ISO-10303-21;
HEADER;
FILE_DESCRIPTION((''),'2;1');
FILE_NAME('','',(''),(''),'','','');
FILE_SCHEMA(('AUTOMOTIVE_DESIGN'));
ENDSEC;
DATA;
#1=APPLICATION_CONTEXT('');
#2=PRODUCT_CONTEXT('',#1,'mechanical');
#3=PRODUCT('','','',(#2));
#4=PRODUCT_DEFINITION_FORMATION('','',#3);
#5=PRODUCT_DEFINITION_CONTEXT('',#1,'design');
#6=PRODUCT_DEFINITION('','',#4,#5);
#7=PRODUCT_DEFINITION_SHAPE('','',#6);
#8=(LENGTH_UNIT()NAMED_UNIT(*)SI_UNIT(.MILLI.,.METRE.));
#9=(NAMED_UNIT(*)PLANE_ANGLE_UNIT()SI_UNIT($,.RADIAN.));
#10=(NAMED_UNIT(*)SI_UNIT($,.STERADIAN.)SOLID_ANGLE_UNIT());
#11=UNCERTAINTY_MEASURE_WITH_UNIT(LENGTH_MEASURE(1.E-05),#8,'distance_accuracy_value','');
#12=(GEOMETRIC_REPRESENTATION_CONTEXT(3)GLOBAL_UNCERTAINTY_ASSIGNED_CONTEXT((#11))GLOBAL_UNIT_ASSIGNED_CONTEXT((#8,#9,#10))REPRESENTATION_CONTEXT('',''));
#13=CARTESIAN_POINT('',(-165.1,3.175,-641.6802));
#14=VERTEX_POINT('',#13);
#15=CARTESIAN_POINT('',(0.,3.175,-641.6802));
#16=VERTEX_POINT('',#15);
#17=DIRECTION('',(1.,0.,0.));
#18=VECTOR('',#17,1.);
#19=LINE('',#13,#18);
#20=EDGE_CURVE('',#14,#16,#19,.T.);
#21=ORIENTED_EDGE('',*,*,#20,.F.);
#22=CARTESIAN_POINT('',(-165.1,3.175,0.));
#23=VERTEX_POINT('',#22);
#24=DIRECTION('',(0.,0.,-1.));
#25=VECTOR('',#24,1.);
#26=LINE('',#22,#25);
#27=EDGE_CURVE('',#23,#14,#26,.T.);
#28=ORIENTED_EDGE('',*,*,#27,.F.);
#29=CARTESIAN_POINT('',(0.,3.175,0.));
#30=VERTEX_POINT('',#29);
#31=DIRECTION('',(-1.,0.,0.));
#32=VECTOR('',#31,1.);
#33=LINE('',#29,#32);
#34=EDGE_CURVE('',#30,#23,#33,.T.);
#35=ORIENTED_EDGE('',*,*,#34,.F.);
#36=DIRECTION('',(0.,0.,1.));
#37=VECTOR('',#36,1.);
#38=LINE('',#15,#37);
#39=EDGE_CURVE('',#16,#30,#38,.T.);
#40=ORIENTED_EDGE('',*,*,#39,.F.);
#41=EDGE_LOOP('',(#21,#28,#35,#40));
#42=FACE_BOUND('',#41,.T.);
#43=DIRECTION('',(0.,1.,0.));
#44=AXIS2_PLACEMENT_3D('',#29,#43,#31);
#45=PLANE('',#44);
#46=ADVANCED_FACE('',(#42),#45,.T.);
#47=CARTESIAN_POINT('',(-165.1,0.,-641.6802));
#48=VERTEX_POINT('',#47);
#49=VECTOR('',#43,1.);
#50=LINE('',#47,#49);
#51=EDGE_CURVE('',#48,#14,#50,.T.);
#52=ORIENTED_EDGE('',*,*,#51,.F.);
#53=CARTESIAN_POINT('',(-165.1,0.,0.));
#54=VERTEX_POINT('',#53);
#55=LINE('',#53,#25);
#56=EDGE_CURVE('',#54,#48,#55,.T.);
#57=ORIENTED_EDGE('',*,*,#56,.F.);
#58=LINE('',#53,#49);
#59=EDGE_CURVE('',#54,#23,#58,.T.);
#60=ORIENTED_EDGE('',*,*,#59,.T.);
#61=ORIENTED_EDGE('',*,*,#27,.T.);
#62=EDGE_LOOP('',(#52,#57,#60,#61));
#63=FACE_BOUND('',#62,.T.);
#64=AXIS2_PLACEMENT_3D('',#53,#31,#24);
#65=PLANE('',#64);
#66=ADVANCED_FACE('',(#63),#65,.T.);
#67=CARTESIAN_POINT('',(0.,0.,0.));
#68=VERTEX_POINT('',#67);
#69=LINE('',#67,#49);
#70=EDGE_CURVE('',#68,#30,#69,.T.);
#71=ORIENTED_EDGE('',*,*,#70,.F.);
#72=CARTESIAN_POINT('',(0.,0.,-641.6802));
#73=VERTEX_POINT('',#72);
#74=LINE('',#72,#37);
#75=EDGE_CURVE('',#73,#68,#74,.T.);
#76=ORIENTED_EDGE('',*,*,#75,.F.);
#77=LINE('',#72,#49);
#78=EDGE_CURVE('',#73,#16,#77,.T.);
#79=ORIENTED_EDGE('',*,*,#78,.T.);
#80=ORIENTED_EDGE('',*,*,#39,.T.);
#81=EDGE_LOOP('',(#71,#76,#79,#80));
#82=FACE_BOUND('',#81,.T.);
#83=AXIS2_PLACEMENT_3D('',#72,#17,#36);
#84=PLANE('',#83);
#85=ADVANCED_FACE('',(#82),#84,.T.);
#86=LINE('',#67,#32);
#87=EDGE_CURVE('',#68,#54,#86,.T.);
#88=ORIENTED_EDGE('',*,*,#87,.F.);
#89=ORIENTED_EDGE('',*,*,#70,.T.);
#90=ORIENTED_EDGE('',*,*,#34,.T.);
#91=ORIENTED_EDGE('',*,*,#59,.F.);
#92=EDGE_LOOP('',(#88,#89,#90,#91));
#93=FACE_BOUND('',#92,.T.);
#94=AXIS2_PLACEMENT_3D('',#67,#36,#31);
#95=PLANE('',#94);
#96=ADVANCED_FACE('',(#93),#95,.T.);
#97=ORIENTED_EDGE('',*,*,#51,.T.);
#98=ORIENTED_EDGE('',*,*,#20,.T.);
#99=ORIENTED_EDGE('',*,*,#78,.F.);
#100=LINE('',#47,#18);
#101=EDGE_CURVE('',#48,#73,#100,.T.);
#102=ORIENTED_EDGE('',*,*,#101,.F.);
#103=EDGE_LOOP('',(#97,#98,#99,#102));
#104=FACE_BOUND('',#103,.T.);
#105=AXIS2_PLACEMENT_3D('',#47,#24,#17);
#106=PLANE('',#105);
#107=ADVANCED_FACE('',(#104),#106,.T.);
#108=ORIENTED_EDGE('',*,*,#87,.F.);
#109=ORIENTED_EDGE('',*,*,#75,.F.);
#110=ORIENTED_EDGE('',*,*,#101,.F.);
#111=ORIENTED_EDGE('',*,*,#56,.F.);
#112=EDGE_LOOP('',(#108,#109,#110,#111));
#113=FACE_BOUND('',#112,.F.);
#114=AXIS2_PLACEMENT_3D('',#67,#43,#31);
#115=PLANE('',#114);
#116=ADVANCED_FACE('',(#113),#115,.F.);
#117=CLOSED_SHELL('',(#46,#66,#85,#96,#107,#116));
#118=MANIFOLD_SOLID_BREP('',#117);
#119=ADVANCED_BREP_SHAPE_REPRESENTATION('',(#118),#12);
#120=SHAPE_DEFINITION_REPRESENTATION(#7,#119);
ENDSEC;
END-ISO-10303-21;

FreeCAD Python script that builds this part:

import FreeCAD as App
import Part
import Sketcher
from FreeCAD import Vector
Q = App.Units.Quantity

doc = App.newDocument("Part")
body = doc.addObject("PartDesign::Body", "Body")

# Sketch on XZ plane
sketch1 = body.newObject("Sketcher::SketchObject", "Sketch")
sketch1.AttachmentSupport = (doc.getObject("XZ_Plane"), [""])
sketch1.MapMode = "FlatFace"
sketch1.addGeometry([
    Part.LineSegment(Vector(-165, 0, 0), Vector(0, 0, 0)),
    Part.LineSegment(Vector(0, 0, 0), Vector(0, -642, 0)),
    Part.LineSegment(Vector(0, -642, 0), Vector(-165, -642, 0)),
    Part.LineSegment(Vector(-165, -642, 0), Vector(-165, 0, 0)),
], False)
sketch1.addConstraint([
    Sketcher.Constraint("Coincident", 0, 2, 1, 1),
    Sketcher.Constraint("Coincident", 1, 2, 2, 1),
    Sketcher.Constraint("Coincident", 2, 2, 3, 1),
    Sketcher.Constraint("Coincident", 3, 2, 0, 1),
    Sketcher.Constraint("Horizontal", 0),
    Sketcher.Constraint("Vertical", 1),
    Sketcher.Constraint("Horizontal", 2),
    Sketcher.Constraint("Vertical", 3),
    Sketcher.Constraint("Coincident", 0, 2, -1, 1),
    Sketcher.Constraint("DistanceX", 0, 1, 0, 2, Q("6.5 in")),
    Sketcher.Constraint("DistanceY", 1, 2, 1, 1, Q("25.263 in")),
])
pad1 = body.newObject("PartDesign::Pad", "Pad")
pad1.Profile = sketch1
pad1.Length = Q("0.125 in")
pad1.Reversed = True

doc.recompute()
